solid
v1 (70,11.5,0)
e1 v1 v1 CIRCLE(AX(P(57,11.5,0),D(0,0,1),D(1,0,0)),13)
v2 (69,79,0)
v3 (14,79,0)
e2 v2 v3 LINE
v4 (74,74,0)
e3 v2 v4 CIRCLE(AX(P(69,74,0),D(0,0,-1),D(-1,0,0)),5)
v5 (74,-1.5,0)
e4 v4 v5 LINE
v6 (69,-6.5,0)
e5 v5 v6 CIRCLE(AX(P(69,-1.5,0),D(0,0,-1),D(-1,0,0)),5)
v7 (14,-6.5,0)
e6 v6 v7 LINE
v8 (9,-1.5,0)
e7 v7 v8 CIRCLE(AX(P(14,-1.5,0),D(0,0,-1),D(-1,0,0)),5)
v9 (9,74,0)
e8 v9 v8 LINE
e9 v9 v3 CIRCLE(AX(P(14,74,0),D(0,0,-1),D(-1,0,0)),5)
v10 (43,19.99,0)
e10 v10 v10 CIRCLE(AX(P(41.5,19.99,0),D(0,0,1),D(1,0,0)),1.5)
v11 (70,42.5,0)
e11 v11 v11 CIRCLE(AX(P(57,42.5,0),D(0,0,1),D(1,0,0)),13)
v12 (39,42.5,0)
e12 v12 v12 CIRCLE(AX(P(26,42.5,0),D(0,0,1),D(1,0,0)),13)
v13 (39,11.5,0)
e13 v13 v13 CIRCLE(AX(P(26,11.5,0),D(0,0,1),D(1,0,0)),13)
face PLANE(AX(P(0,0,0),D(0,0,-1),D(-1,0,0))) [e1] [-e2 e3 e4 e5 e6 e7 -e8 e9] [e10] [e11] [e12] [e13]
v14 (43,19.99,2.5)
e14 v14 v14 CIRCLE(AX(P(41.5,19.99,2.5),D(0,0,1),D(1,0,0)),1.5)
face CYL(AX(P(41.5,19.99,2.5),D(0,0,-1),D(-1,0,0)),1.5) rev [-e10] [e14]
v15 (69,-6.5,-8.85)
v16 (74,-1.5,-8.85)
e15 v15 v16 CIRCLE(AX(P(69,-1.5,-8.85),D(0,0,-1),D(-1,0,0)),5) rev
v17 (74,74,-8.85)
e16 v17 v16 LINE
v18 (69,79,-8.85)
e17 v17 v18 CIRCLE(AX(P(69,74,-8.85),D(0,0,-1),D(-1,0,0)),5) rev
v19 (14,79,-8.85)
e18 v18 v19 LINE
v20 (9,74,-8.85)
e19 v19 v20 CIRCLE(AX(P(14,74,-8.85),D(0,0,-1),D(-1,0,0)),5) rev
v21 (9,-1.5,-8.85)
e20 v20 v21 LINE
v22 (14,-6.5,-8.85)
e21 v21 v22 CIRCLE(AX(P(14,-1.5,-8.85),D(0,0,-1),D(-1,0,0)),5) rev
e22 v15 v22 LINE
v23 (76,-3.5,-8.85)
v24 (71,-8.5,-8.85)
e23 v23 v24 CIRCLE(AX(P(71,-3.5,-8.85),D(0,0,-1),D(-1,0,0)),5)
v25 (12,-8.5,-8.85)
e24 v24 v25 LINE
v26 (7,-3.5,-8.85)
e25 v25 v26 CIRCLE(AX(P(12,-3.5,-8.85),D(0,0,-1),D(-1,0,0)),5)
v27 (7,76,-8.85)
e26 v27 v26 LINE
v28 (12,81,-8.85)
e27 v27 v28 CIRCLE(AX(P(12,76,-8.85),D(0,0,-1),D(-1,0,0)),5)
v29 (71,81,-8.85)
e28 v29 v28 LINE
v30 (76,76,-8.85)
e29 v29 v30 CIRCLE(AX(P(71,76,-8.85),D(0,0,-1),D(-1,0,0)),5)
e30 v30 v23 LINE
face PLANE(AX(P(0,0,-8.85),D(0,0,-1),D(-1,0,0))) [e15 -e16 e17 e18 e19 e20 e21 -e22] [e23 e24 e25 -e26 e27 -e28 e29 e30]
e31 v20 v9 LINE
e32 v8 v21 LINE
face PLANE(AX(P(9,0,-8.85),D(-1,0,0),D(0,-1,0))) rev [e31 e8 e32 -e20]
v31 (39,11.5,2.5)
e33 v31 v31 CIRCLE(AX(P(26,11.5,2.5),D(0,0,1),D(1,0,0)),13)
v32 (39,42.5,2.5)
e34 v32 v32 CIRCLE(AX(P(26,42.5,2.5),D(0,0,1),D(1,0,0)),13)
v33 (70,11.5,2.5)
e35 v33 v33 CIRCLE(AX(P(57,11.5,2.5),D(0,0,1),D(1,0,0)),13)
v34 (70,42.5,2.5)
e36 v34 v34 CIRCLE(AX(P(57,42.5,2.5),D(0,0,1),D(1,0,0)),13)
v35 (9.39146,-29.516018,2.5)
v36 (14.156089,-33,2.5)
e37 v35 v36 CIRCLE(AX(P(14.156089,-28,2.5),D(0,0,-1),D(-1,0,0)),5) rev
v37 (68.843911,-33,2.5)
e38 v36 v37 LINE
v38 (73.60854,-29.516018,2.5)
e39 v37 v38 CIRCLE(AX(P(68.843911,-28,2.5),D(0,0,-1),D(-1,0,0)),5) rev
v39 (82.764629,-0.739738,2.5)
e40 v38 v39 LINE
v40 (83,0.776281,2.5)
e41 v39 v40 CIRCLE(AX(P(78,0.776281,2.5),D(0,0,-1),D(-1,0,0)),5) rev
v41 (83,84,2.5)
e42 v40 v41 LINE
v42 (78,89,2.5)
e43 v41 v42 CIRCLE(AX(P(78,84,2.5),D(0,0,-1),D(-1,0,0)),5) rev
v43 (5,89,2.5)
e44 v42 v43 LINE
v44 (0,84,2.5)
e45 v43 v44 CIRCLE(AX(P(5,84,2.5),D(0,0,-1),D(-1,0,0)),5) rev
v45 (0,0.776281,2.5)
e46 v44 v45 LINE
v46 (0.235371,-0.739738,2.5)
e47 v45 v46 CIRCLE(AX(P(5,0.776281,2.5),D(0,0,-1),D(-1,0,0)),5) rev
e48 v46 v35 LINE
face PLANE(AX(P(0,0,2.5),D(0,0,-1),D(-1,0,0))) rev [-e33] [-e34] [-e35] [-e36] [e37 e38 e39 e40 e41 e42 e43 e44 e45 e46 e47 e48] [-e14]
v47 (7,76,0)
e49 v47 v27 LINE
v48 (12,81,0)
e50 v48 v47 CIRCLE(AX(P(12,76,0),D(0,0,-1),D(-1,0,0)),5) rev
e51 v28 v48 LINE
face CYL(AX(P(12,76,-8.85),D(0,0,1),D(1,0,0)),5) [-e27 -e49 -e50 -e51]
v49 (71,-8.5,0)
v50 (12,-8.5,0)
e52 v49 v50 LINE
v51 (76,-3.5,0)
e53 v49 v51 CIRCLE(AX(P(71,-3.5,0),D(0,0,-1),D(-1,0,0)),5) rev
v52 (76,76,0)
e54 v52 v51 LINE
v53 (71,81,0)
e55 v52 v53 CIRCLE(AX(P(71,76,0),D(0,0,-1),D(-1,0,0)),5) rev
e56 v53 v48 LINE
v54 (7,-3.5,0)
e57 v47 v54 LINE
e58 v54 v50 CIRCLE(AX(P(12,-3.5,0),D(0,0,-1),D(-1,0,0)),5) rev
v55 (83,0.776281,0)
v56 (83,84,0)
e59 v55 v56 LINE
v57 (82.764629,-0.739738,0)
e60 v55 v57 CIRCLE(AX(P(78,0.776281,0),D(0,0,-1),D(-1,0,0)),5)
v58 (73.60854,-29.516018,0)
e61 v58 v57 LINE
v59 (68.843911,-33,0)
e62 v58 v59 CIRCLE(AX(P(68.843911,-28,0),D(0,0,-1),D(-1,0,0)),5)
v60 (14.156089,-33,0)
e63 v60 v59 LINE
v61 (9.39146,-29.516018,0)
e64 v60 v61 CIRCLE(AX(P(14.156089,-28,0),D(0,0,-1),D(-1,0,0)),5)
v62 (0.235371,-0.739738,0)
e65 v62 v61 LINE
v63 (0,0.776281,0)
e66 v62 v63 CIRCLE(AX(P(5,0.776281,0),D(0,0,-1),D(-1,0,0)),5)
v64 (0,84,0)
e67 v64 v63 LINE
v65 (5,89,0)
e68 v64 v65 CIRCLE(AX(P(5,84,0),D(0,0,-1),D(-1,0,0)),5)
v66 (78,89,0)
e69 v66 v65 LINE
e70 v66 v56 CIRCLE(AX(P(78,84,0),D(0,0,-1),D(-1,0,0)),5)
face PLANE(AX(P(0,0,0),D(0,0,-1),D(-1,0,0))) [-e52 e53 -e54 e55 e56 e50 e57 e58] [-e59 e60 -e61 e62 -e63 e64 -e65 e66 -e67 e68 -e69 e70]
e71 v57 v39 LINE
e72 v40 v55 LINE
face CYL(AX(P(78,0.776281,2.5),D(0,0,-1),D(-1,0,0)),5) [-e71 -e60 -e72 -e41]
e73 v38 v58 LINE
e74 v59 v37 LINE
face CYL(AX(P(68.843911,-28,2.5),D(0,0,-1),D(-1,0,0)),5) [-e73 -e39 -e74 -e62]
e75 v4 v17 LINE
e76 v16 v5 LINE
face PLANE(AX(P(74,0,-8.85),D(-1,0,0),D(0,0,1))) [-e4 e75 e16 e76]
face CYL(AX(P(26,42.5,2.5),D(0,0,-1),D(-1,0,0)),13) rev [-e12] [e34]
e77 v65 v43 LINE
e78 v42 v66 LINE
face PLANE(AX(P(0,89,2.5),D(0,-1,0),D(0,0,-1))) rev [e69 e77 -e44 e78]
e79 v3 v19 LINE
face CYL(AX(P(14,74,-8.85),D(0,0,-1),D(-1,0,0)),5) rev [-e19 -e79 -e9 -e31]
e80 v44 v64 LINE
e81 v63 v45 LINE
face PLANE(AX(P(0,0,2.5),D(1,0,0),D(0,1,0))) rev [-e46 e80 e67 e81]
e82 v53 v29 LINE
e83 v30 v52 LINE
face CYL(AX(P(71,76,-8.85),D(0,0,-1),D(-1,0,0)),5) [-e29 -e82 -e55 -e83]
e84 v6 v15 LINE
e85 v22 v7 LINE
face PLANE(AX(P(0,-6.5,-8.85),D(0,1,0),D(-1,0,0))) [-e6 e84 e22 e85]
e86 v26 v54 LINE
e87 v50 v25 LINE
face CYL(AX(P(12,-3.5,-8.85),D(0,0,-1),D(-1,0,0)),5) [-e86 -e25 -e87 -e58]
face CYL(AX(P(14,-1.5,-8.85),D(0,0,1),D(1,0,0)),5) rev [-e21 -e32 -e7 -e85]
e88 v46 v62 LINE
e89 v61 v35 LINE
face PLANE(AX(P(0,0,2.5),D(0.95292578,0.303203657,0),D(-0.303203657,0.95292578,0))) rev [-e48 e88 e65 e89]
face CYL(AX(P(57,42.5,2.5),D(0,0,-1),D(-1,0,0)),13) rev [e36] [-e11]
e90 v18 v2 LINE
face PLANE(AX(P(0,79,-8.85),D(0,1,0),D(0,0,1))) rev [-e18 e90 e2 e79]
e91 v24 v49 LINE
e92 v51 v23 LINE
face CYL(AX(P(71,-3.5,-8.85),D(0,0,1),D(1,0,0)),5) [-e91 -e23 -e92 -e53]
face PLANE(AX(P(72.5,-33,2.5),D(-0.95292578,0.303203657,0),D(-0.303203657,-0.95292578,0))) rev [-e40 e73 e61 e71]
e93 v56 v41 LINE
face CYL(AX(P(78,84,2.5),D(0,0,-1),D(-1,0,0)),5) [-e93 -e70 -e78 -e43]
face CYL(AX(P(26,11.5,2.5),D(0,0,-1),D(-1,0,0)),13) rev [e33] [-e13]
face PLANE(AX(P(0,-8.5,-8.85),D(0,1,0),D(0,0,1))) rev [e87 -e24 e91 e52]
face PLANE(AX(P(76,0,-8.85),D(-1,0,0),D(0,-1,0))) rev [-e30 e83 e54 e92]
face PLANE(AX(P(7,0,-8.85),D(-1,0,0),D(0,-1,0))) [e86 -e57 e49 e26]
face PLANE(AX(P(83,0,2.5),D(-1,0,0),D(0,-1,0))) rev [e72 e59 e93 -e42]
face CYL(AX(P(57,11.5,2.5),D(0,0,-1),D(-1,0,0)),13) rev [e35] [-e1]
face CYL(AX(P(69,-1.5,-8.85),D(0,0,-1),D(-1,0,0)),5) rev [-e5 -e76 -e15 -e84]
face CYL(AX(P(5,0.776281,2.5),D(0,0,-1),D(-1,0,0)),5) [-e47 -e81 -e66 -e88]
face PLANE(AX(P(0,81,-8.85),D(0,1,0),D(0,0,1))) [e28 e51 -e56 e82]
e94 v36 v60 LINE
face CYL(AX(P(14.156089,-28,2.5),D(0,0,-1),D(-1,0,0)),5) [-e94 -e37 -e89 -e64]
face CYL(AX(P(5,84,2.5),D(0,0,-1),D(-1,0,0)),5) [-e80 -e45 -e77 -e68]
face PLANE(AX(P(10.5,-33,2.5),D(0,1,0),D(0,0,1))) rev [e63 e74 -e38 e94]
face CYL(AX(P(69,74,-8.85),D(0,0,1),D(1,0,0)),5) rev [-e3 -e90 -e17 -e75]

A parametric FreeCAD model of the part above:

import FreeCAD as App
import Part
import Sketcher

V = App.Vector


def edges_at(feature, points):
    """Names of the edges that pass closest to the given points."""
    edges = feature.Shape.Edges
    near = lambda p: min(range(len(edges)), key=lambda i: edges[i].distToShape(Part.Vertex(*p))[0])
    return sorted({f"Edge{near(p) + 1}" for p in points})

doc = App.newDocument("Part")
params = doc.addObject("Spreadsheet::Sheet", "Params")
for row, (alias, value) in enumerate([
    ("sketch1_diameter", "26 mm"),
    ("sketch1_diameter2", "3 mm"),
    ("sketch1_width", "62 mm"),
    ("sketch1_width2", "83 mm"),
    ("sketch1_height", "89 mm"),
    ("pad1_length", "2.5 mm"),
    ("sketch2_width", "69 mm"),
    ("sketch2_width2", "65 mm"),
    ("sketch2_height", "89.5 mm"),
    ("sketch2_height2", "85.5 mm"),
    ("pad2_length", "8.85 mm"),
    ("fillet_radius", "5 mm"),
], start=1):
    params.set(f"A{row}", alias)
    params.set(f"B{row}", "=" + value)
    params.setAlias(f"B{row}", alias)

body = doc.addObject("PartDesign::Body", "Body")

# Sketch on XY plane
sketch1 = body.newObject("Sketcher::SketchObject", "Sketch")
sketch1.AttachmentSupport = (doc.getObject("XY_Plane"), [""])
sketch1.MapMode = "FlatFace"
sketch1.addGeometry([
    Part.LineSegment(V(0, 0, 0), V(10.5, -33, 0)),  # 0
    Part.LineSegment(V(10.5, -33, 0), V(72.5, -33, 0)),  # 1
    Part.LineSegment(V(72.5, -33, 0), V(83, 0, 0)),  # 2
    Part.LineSegment(V(83, 0, 0), V(83, 89, 0)),  # 3
    Part.LineSegment(V(83, 89, 0), V(0, 89, 0)),  # 4
    Part.LineSegment(V(0, 89, 0), V(0, 0, 0)),  # 5
    Part.Circle(V(26, 11.5, 0), V(0, 0, 1), 13),  # 6
    Part.Circle(V(57, 11.5, 0), V(0, 0, 1), 13),  # 7
    Part.Circle(V(41.5, 19.99, 0), V(0, 0, 1), 1.5),  # 8
    Part.Circle(V(26, 42.5, 0), V(0, 0, 1), 13),  # 9
    Part.Circle(V(57, 42.5, 0), V(0, 0, 1), 13),  # 10
], False)
sketch1.addConstraint([
    Sketcher.Constraint("Coincident", 0, 2, 1, 1),
    Sketcher.Constraint("Coincident", 1, 2, 2, 1),
    Sketcher.Constraint("Coincident", 2, 2, 3, 1),
    Sketcher.Constraint("Coincident", 3, 2, 4, 1),
    Sketcher.Constraint("Coincident", 4, 2, 5, 1),
    Sketcher.Constraint("Coincident", 5, 2, 0, 1),
    Sketcher.Constraint("Horizontal", 1),
    Sketcher.Constraint("Vertical", 3),
    Sketcher.Constraint("Horizontal", 4),
    Sketcher.Constraint("Vertical", 5),
    Sketcher.Constraint("Coincident", 5, 2, -1, 1),
    Sketcher.Constraint("Equal", 6, 7),
    Sketcher.Constraint("Equal", 7, 9),
    Sketcher.Constraint("Equal", 9, 10),
    Sketcher.Constraint("PointOnObject", 2, 2, -1),
    Sketcher.Constraint("Horizontal", 6, 3, 7, 3),
    Sketcher.Constraint("Horizontal", 9, 3, 10, 3),
    Sketcher.Constraint("Vertical", 6, 3, 9, 3),
    Sketcher.Constraint("Vertical", 7, 3, 10, 3),
    Sketcher.Constraint("Equal", 0, 2),
    Sketcher.Constraint("Diameter", 6, 26.0),
    Sketcher.Constraint("Diameter", 8, 3.0),
    Sketcher.Constraint("DistanceX", 1, 1, 1, 2, 62.0),
    Sketcher.Constraint("DistanceX", 4, 2, 4, 1, 83.0),
    Sketcher.Constraint("DistanceY", 3, 1, 3, 2, 89.0),
    Sketcher.Constraint("DistanceX", -1, 1, 6, 3, 26.0),
    Sketcher.Constraint("DistanceX", -1, 1, 7, 3, 57.0),
    Sketcher.Constraint("DistanceY", 0, 2, -1, 1, 33.0),
    Sketcher.Constraint("DistanceY", 6, 3, 9, 3, 31.0),
    Sketcher.Constraint("DistanceX", 0, 2, 8, 3, 31.0),
    Sketcher.Constraint("DistanceY", -1, 1, 6, 3, 11.5),
    Sketcher.Constraint("DistanceY", -1, 1, 8, 3, 19.99),
])
sketch1.setExpression("Constraints[20]", "Params.sketch1_diameter")
sketch1.setExpression("Constraints[21]", "Params.sketch1_diameter2")
sketch1.setExpression("Constraints[22]", "Params.sketch1_width")
sketch1.setExpression("Constraints[23]", "Params.sketch1_width2")
sketch1.setExpression("Constraints[24]", "Params.sketch1_height")
pad1 = body.newObject("PartDesign::Pad", "Pad")
pad1.Profile = sketch1
pad1.setExpression("Length", "Params.pad1_length")

# Sketch on XY plane
sketch2 = body.newObject("Sketcher::SketchObject", "Sketch001")
sketch2.AttachmentSupport = (doc.getObject("XY_Plane"), [""])
sketch2.MapMode = "FlatFace"
sketch2.addGeometry([
    Part.LineSegment(V(76, 81, 0), V(76, -8.5, 0)),  # 0
    Part.LineSegment(V(76, -8.5, 0), V(7, -8.5, 0)),  # 1
    Part.LineSegment(V(7, -8.5, 0), V(7, 81, 0)),  # 2
    Part.LineSegment(V(7, 81, 0), V(76, 81, 0)),  # 3
    Part.LineSegment(V(9, -6.5, 0), V(74, -6.5, 0)),  # 4
    Part.LineSegment(V(74, -6.5, 0), V(74, 79, 0)),  # 5
    Part.LineSegment(V(74, 79, 0), V(9, 79, 0)),  # 6
    Part.LineSegment(V(9, 79, 0), V(9, -6.5, 0)),  # 7
], False)
sketch2.addConstraint([
    Sketcher.Constraint("Coincident", 0, 2, 1, 1),
    Sketcher.Constraint("Coincident", 1, 2, 2, 1),
    Sketcher.Constraint("Coincident", 2, 2, 3, 1),
    Sketcher.Constraint("Coincident", 3, 2, 0, 1),
    Sketcher.Constraint("Coincident", 4, 2, 5, 1),
    Sketcher.Constraint("Coincident", 5, 2, 6, 1),
    Sketcher.Constraint("Coincident", 6, 2, 7, 1),
    Sketcher.Constraint("Coincident", 7, 2, 4, 1),
    Sketcher.Constraint("Vertical", 0),
    Sketcher.Constraint("Horizontal", 1),
    Sketcher.Constraint("Vertical", 2),
    Sketcher.Constraint("Horizontal", 3),
    Sketcher.Constraint("Horizontal", 4),
    Sketcher.Constraint("Vertical", 5),
    Sketcher.Constraint("Horizontal", 6),
    Sketcher.Constraint("Vertical", 7),
    Sketcher.Constraint("DistanceX", 1, 2, 1, 1, 69.0),
    Sketcher.Constraint("DistanceX", 4, 1, 4, 2, 65.0),
    Sketcher.Constraint("DistanceY", 0, 2, 0, 1, 89.5),
    Sketcher.Constraint("DistanceY", 5, 1, 5, 2, 85.5),
    Sketcher.Constraint("DistanceX", -1, 1, 0, 2, 76.0),
    Sketcher.Constraint("DistanceY", -1, 1, 2, 2, 81.0),
    Sketcher.Constraint("DistanceX", -1, 1, 4, 2, 74.0),
    Sketcher.Constraint("DistanceY", -1, 1, 5, 2, 79.0),
])
sketch2.setExpression("Constraints[16]", "Params.sketch2_width")
sketch2.setExpression("Constraints[17]", "Params.sketch2_width2")
sketch2.setExpression("Constraints[18]", "Params.sketch2_height")
sketch2.setExpression("Constraints[19]", "Params.sketch2_height2")
pad2 = body.newObject("PartDesign::Pad", "Pad001")
pad2.Profile = sketch2
pad2.setExpression("Length", "Params.pad2_length")
pad2.Reversed = True
doc.recompute()

fillet = body.newObject("PartDesign::Fillet", "Fillet")
fillet.Base = (pad2, edges_at(pad2, [
    (0, 89, 1.25),
    (83, 89, 1.25),
    (83, 0, 1.25),
    (72.5, -33, 1.25),
    (10.5, -33, 1.25),
    (0, 0, 1.25),
    (74, -6.5, -4.425),
    (74, 79, -4.425),
    (9, 79, -4.425),
    (7, -8.5, -4.425),
    (7, 81, -4.425),
    (76, 81, -4.425),
    (76, -8.5, -4.425),
    (9, -6.5, -4.425),
]))
fillet.setExpression("Radius", "Params.fillet_radius")

doc.recompute()
